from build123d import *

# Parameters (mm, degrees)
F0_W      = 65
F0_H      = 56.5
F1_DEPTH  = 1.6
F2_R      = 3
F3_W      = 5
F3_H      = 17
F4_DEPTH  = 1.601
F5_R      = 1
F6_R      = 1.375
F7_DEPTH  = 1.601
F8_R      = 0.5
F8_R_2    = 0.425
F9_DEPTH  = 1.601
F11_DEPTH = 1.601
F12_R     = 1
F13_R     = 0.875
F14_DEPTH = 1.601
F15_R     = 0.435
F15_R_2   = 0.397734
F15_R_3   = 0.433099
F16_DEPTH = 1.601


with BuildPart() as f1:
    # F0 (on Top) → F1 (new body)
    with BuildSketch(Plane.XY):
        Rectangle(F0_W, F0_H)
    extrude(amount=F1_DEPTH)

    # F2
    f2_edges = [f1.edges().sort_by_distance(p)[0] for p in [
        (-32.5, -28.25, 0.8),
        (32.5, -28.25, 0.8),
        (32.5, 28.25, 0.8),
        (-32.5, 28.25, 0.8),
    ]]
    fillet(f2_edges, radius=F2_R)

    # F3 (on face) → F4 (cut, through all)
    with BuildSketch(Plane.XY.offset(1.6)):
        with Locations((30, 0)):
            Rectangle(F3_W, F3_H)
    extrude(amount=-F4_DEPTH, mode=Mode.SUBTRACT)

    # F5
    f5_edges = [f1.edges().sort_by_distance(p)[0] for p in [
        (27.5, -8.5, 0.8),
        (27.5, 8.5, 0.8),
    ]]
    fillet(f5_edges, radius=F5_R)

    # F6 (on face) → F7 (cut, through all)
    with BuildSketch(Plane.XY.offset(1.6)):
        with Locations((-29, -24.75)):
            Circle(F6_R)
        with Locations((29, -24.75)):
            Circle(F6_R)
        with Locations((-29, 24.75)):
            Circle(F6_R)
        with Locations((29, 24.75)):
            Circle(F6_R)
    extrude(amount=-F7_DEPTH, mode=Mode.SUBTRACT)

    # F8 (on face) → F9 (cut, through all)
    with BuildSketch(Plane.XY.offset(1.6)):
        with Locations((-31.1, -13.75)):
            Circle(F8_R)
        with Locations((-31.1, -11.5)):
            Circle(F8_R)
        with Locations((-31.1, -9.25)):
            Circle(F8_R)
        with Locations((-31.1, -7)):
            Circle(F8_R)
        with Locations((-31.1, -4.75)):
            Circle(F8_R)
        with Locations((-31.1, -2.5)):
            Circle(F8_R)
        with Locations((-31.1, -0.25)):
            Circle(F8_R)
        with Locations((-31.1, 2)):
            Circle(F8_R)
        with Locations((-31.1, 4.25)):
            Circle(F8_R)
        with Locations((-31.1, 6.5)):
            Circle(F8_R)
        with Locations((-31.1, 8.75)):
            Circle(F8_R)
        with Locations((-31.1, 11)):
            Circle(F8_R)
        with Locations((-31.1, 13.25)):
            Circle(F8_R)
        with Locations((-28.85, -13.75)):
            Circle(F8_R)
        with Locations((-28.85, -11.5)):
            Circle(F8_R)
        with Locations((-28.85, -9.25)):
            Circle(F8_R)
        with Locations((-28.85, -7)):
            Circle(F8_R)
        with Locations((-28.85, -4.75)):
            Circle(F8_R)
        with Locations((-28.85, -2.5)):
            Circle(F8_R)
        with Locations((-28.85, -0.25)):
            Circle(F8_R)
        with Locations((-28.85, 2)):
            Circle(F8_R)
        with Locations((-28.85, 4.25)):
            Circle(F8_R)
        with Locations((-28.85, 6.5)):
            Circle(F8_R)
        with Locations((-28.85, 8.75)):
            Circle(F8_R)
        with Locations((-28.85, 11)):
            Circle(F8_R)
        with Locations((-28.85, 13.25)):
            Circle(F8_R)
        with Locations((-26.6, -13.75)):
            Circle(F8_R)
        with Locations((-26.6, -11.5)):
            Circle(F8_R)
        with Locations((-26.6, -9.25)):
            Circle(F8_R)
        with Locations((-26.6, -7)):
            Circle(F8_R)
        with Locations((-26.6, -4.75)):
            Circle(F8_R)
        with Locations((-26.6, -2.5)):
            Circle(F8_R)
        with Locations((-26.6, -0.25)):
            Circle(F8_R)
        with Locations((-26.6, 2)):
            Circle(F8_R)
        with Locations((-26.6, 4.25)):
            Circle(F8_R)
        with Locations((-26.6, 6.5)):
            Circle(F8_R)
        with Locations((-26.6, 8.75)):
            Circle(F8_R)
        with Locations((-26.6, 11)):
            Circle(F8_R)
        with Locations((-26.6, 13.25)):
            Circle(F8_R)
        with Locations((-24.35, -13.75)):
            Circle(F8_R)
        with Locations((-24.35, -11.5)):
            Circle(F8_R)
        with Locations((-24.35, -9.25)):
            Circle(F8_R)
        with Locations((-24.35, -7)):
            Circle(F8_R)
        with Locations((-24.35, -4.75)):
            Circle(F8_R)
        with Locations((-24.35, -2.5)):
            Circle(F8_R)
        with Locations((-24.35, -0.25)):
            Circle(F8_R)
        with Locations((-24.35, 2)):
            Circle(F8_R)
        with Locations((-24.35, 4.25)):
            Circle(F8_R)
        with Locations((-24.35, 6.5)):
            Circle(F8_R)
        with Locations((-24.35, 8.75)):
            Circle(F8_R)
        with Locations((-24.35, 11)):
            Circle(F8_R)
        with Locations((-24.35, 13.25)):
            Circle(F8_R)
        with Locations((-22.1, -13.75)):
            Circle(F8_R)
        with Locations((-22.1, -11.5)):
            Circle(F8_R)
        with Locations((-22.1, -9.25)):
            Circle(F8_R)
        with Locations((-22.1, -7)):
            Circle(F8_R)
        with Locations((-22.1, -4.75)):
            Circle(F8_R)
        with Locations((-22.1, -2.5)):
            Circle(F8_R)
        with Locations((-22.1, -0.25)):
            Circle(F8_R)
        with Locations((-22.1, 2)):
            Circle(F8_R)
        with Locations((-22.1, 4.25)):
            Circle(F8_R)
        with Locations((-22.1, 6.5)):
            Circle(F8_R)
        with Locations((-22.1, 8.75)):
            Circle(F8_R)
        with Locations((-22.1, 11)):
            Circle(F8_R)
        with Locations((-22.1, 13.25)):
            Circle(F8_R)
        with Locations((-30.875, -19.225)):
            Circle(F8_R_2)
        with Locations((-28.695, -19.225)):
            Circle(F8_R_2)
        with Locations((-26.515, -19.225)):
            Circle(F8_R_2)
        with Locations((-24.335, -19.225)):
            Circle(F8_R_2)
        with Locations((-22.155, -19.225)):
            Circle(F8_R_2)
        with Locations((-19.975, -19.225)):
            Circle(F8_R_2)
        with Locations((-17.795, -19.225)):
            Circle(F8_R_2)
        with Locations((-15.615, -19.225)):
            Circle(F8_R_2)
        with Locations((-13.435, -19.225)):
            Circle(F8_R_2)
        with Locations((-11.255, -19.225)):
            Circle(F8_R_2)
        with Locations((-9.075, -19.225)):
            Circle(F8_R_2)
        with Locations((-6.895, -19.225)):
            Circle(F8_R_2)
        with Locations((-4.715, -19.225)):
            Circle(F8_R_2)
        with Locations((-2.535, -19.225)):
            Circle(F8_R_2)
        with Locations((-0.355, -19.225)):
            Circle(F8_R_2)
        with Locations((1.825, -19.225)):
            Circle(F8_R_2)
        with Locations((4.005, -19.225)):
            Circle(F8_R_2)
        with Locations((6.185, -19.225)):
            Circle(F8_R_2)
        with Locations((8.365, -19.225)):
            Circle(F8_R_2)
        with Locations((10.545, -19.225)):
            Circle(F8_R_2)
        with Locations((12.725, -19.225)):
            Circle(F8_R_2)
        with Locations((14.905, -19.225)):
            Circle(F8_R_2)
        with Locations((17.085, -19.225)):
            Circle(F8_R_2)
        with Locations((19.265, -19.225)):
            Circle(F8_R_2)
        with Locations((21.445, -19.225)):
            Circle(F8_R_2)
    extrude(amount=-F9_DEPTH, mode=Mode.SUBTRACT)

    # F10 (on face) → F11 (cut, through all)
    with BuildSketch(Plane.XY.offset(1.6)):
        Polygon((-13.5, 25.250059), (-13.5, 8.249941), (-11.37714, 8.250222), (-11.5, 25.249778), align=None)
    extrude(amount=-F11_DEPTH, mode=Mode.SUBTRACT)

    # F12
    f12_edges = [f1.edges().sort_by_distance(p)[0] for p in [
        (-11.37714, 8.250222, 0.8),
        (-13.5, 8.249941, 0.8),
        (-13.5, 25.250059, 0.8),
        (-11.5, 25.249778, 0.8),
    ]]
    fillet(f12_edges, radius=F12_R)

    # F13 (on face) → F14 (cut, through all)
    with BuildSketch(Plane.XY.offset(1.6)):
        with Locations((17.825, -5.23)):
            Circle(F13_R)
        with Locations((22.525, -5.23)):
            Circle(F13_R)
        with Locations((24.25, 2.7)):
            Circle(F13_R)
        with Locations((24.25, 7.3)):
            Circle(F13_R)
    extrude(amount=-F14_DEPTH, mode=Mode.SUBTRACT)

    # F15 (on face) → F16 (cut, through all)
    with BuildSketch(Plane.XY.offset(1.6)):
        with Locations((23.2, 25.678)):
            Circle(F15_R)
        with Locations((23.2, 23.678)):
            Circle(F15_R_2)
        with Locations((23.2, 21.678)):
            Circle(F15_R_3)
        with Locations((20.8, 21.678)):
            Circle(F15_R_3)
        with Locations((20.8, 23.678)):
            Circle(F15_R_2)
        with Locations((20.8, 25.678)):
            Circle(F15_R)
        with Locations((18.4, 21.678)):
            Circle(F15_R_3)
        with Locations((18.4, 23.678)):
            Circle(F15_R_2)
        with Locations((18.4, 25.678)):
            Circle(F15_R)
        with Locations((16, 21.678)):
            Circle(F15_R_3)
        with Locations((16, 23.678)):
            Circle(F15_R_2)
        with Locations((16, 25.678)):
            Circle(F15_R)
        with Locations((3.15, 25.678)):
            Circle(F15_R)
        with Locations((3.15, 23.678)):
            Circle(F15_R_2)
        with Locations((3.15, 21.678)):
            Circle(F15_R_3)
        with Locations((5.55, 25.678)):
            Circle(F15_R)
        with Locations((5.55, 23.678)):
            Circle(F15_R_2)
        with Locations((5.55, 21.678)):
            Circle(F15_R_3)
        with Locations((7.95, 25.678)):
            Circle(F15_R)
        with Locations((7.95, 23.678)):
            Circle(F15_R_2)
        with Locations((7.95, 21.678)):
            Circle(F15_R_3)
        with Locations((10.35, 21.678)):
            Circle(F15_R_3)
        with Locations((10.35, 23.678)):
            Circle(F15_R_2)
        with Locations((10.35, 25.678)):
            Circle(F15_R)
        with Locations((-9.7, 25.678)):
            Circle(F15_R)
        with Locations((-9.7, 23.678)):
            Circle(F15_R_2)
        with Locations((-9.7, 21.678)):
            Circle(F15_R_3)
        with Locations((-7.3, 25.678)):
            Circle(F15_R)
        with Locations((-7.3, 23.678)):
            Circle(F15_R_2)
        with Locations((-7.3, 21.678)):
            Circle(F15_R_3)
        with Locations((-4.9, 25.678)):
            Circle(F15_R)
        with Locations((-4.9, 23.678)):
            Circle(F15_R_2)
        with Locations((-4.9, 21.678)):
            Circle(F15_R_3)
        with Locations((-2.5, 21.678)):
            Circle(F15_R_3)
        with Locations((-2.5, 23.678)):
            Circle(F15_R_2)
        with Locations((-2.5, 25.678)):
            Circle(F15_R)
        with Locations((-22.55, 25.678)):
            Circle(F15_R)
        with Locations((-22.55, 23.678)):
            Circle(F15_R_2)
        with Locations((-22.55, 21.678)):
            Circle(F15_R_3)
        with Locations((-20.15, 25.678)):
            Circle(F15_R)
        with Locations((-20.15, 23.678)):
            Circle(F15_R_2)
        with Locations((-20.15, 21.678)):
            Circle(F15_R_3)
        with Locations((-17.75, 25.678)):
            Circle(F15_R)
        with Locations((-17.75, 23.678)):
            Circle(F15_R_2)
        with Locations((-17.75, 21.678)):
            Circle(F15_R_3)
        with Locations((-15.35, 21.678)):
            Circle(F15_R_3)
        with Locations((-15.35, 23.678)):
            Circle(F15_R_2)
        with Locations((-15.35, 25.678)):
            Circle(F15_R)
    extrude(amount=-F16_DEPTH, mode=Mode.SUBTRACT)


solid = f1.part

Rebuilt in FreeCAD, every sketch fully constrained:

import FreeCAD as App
import Part
import Sketcher


def edges_at(feature, points):
    """Names of the edges that pass closest to the given points."""
    edges = feature.Shape.Edges
    near = lambda p: min(range(len(edges)), key=lambda i: edges[i].distToShape(Part.Vertex(*p))[0])
    return sorted({f"Edge{near(p) + 1}" for p in points})

doc = App.newDocument("Part")
body = doc.addObject("PartDesign::Body", "Body")

# Sketch on XY plane
sketch1 = doc.addObject("Sketcher::SketchObject", "Sketch")
body.addObject(sketch1)
sketch1.AttachmentSupport = (doc.XY_Plane, [""])
sketch1.MapMode = "FlatFace"
sketch1.addGeometry([
    Part.LineSegment(App.Vector(-32, 28, 0), App.Vector(-32, -28, 0)),
    Part.LineSegment(App.Vector(-32, -28, 0), App.Vector(32, -28, 0)),
    Part.LineSegment(App.Vector(32, -28, 0), App.Vector(32, 28, 0)),
    Part.LineSegment(App.Vector(32, 28, 0), App.Vector(-32, 28, 0)),
], False)
sketch1.addConstraint([
    Sketcher.Constraint("Coincident", 0, 2, 1, 1),
    Sketcher.Constraint("Coincident", 1, 2, 2, 1),
    Sketcher.Constraint("Coincident", 2, 2, 3, 1),
    Sketcher.Constraint("Coincident", 3, 2, 0, 1),
    Sketcher.Constraint("Vertical", 0),
    Sketcher.Constraint("Horizontal", 1),
    Sketcher.Constraint("Vertical", 2),
    Sketcher.Constraint("Horizontal", 3),
    Sketcher.Constraint("Symmetric", 0, 2, 2, 2, -1, 1),
    Sketcher.Constraint("DistanceX", 1, 1, 1, 2, 65.0),
    Sketcher.Constraint("DistanceY", 0, 2, 0, 1, 56.5),
])
pad1 = doc.addObject("PartDesign::Pad", "Pad")
body.addObject(pad1)
pad1.Profile = sketch1
pad1.Length = 1.6
doc.recompute()

fillet = doc.addObject("PartDesign::Fillet", "Fillet")
body.addObject(fillet)
fillet.Base = (pad1, edges_at(pad1, [
    (-32.5, -28.25, 0.8),
    (32.5, -28.25, 0.8),
    (32.5, 28.25, 0.8),
    (-32.5, 28.25, 0.8),
]))
fillet.Radius = 3

# Sketch on XY plane
sketch2 = doc.addObject("Sketcher::SketchObject", "Sketch001")
body.addObject(sketch2)
sketch2.AttachmentSupport = (doc.XY_Plane, [""])
sketch2.MapMode = "FlatFace"
sketch2.AttachmentOffset = App.Placement(App.Vector(0, 0, 1.6), App.Rotation())
sketch2.addGeometry([
    Part.LineSegment(App.Vector(28, 8, 0), App.Vector(28, -8, 0)),
    Part.LineSegment(App.Vector(28, -8, 0), App.Vector(32, -8, 0)),
    Part.LineSegment(App.Vector(32, -8, 0), App.Vector(32, 8, 0)),
    Part.LineSegment(App.Vector(32, 8, 0), App.Vector(28, 8, 0)),
], False)
sketch2.addConstraint([
    Sketcher.Constraint("Coincident", 0, 2, 1, 1),
    Sketcher.Constraint("Coincident", 1, 2, 2, 1),
    Sketcher.Constraint("Coincident", 2, 2, 3, 1),
    Sketcher.Constraint("Coincident", 3, 2, 0, 1),
    Sketcher.Constraint("Vertical", 0),
    Sketcher.Constraint("Horizontal", 1),
    Sketcher.Constraint("Vertical", 2),
    Sketcher.Constraint("Horizontal", 3),
    Sketcher.Constraint("DistanceX", 1, 1, 1, 2, 5.0),
    Sketcher.Constraint("DistanceY", 0, 2, 0, 1, 17.0),
    Sketcher.Constraint("DistanceX", -1, 1, 0, 2, 27.5),
    Sketcher.Constraint("DistanceY", 0, 2, -1, 1, 8.5),
])
pocket1 = doc.addObject("PartDesign::Pocket", "Pocket")
body.addObject(pocket1)
pocket1.Profile = sketch2
pocket1.Type = "ThroughAll"
doc.recompute()

fillet2 = doc.addObject("PartDesign::Fillet", "Fillet001")
body.addObject(fillet2)
fillet2.Base = (pocket1, edges_at(pocket1, [(27.5, -8.5, 0.8), (27.5, 8.5, 0.8)]))
fillet2.Radius = 1

# Sketch on XY plane
sketch3 = doc.addObject("Sketcher::SketchObject", "Sketch002")
body.addObject(sketch3)
sketch3.AttachmentSupport = (doc.XY_Plane, [""])
sketch3.MapMode = "FlatFace"
sketch3.AttachmentOffset = App.Placement(App.Vector(0, 0, 1.6), App.Rotation())
sketch3.addGeometry([
    Part.Circle(App.Vector(-29, -24.8, 0), App.Vector(0, 0, 1), 1.4),
    Part.Circle(App.Vector(29, -24.8, 0), App.Vector(0, 0, 1), 1.4),
    Part.Circle(App.Vector(-29, 24.8, 0), App.Vector(0, 0, 1), 1.4),
    Part.Circle(App.Vector(29, 24.8, 0), App.Vector(0, 0, 1), 1.4),
], False)
sketch3.addConstraint([
    Sketcher.Constraint("Equal", 0, 1),
    Sketcher.Constraint("Equal", 1, 2),
    Sketcher.Constraint("Equal", 2, 3),
    Sketcher.Constraint("Symmetric", 1, 3, 2, 3, -1, 1),
    Sketcher.Constraint("Symmetric", 0, 3, 3, 3, -1, 1),
    Sketcher.Constraint("Symmetric", 0, 3, 1, 3, -2),
    Sketcher.Constraint("Diameter", 0, 2.75),
    Sketcher.Constraint("DistanceX", 0, 3, -1, 1, 29.0),
    Sketcher.Constraint("DistanceY", 0, 3, 2, 3, 49.5),
])
pocket2 = doc.addObject("PartDesign::Pocket", "Pocket001")
body.addObject(pocket2)
pocket2.Profile = sketch3
pocket2.Type = "ThroughAll"

# Sketch on XY plane
sketch4 = doc.addObject("Sketcher::SketchObject", "Sketch003")
body.addObject(sketch4)
sketch4.AttachmentSupport = (doc.XY_Plane, [""])
sketch4.MapMode = "FlatFace"
sketch4.AttachmentOffset = App.Placement(App.Vector(0, 0, 1.6), App.Rotation())
sketch4.addGeometry([
    Part.Circle(App.Vector(-31.1, -13.75, 0), App.Vector(0, 0, 1), 0.5),  # 0
    Part.Circle(App.Vector(-31.1, -11.5, 0), App.Vector(0, 0, 1), 0.5),  # 1
    Part.Circle(App.Vector(-31.1, -9.25, 0), App.Vector(0, 0, 1), 0.5),  # 2
    Part.Circle(App.Vector(-31.1, -7, 0), App.Vector(0, 0, 1), 0.5),  # 3
    Part.Circle(App.Vector(-31.1, -4.75, 0), App.Vector(0, 0, 1), 0.5),  # 4
    Part.Circle(App.Vector(-31.1, -2.5, 0), App.Vector(0, 0, 1), 0.5),  # 5
    Part.Circle(App.Vector(-31.1, -0.25, 0), App.Vector(0, 0, 1), 0.5),  # 6
    Part.Circle(App.Vector(-31.1, 2, 0), App.Vector(0, 0, 1), 0.5),  # 7
    Part.Circle(App.Vector(-31.1, 4.25, 0), App.Vector(0, 0, 1), 0.5),  # 8
    Part.Circle(App.Vector(-31.1, 6.5, 0), App.Vector(0, 0, 1), 0.5),  # 9
    Part.Circle(App.Vector(-31.1, 8.75, 0), App.Vector(0, 0, 1), 0.5),  # 10
    Part.Circle(App.Vector(-31.1, 11, 0), App.Vector(0, 0, 1), 0.5),  # 11
    Part.Circle(App.Vector(-31.1, 13.25, 0), App.Vector(0, 0, 1), 0.5),  # 12
    Part.Circle(App.Vector(-28.85, -13.75, 0), App.Vector(0, 0, 1), 0.5),  # 13
    Part.Circle(App.Vector(-28.85, -11.5, 0), App.Vector(0, 0, 1), 0.5),  # 14
    Part.Circle(App.Vector(-28.85, -9.25, 0), App.Vector(0, 0, 1), 0.5),  # 15
    Part.Circle(App.Vector(-28.85, -7, 0), App.Vector(0, 0, 1), 0.5),  # 16
    Part.Circle(App.Vector(-28.85, -4.75, 0), App.Vector(0, 0, 1), 0.5),  # 17
    Part.Circle(App.Vector(-28.85, -2.5, 0), App.Vector(0, 0, 1), 0.5),  # 18
    Part.Circle(App.Vector(-28.85, -0.25, 0), App.Vector(0, 0, 1), 0.5),  # 19
    Part.Circle(App.Vector(-28.85, 2, 0), App.Vector(0, 0, 1), 0.5),  # 20
    Part.Circle(App.Vector(-28.85, 4.25, 0), App.Vector(0, 0, 1), 0.5),  # 21
    Part.Circle(App.Vector(-28.85, 6.5, 0), App.Vector(0, 0, 1), 0.5),  # 22
    Part.Circle(App.Vector(-28.85, 8.75, 0), App.Vector(0, 0, 1), 0.5),  # 23
    Part.Circle(App.Vector(-28.85, 11, 0), App.Vector(0, 0, 1), 0.5),  # 24
    Part.Circle(App.Vector(-28.85, 13.25, 0), App.Vector(0, 0, 1), 0.5),  # 25
    Part.Circle(App.Vector(-26.6, -13.75, 0), App.Vector(0, 0, 1), 0.5),  # 26
    Part.Circle(App.Vector(-26.6, -11.5, 0), App.Vector(0, 0, 1), 0.5),  # 27
    Part.Circle(App.Vector(-26.6, -9.25, 0), App.Vector(0, 0, 1), 0.5),  # 28
    Part.Circle(App.Vector(-26.6, -7, 0), App.Vector(0, 0, 1), 0.5),  # 29
    Part.Circle(App.Vector(-26.6, -4.75, 0), App.Vector(0, 0, 1), 0.5),  # 30
    Part.Circle(App.Vector(-26.6, -2.5, 0), App.Vector(0, 0, 1), 0.5),  # 31
    Part.Circle(App.Vector(-26.6, -0.25, 0), App.Vector(0, 0, 1), 0.5),  # 32
    Part.Circle(App.Vector(-26.6, 2, 0), App.Vector(0, 0, 1), 0.5),  # 33
    Part.Circle(App.Vector(-26.6, 4.25, 0), App.Vector(0, 0, 1), 0.5),  # 34
    Part.Circle(App.Vector(-26.6, 6.5, 0), App.Vector(0, 0, 1), 0.5),  # 35
    Part.Circle(App.Vector(-26.6, 8.75, 0), App.Vector(0, 0, 1), 0.5),  # 36
    Part.Circle(App.Vector(-26.6, 11, 0), App.Vector(0, 0, 1), 0.5),  # 37
    Part.Circle(App.Vector(-26.6, 13.25, 0), App.Vector(0, 0, 1), 0.5),  # 38
    Part.Circle(App.Vector(-24.35, -13.75, 0), App.Vector(0, 0, 1), 0.5),  # 39
    Part.Circle(App.Vector(-24.35, -11.5, 0), App.Vector(0, 0, 1), 0.5),  # 40
    Part.Circle(App.Vector(-24.35, -9.25, 0), App.Vector(0, 0, 1), 0.5),  # 41
    Part.Circle(App.Vector(-24.35, -7, 0), App.Vector(0, 0, 1), 0.5),  # 42
    Part.Circle(App.Vector(-24.35, -4.75, 0), App.Vector(0, 0, 1), 0.5),  # 43
    Part.Circle(App.Vector(-24.35, -2.5, 0), App.Vector(0, 0, 1), 0.5),  # 44
    Part.Circle(App.Vector(-24.35, -0.25, 0), App.Vector(0, 0, 1), 0.5),  # 45
    Part.Circle(App.Vector(-24.35, 2, 0), App.Vector(0, 0, 1), 0.5),  # 46
    Part.Circle(App.Vector(-24.35, 4.25, 0), App.Vector(0, 0, 1), 0.5),  # 47
    Part.Circle(App.Vector(-24.35, 6.5, 0), App.Vector(0, 0, 1), 0.5),  # 48
    Part.Circle(App.Vector(-24.35, 8.75, 0), App.Vector(0, 0, 1), 0.5),  # 49
    Part.Circle(App.Vector(-24.35, 11, 0), App.Vector(0, 0, 1), 0.5),  # 50
    Part.Circle(App.Vector(-24.35, 13.25, 0), App.Vector(0, 0, 1), 0.5),  # 51
    Part.Circle(App.Vector(-22.1, -13.75, 0), App.Vector(0, 0, 1), 0.5),  # 52
    Part.Circle(App.Vector(-22.1, -11.5, 0), App.Vector(0, 0, 1), 0.5),  # 53
    Part.Circle(App.Vector(-22.1, -9.25, 0), App.Vector(0, 0, 1), 0.5),  # 54
    Part.Circle(App.Vector(-22.1, -7, 0), App.Vector(0, 0, 1), 0.5),  # 55
    Part.Circle(App.Vector(-22.1, -4.75, 0), App.Vector(0, 0, 1), 0.5),  # 56
    Part.Circle(App.Vector(-22.1, -2.5, 0), App.Vector(0, 0, 1), 0.5),  # 57
    Part.Circle(App.Vector(-22.1, -0.25, 0), App.Vector(0, 0, 1), 0.5),  # 58
    Part.Circle(App.Vector(-22.1, 2, 0), App.Vector(0, 0, 1), 0.5),  # 59
    Part.Circle(App.Vector(-22.1, 4.25, 0), App.Vector(0, 0, 1), 0.5),  # 60
    Part.Circle(App.Vector(-22.1, 6.5, 0), App.Vector(0, 0, 1), 0.5),  # 61
    Part.Circle(App.Vector(-22.1, 8.75, 0), App.Vector(0, 0, 1), 0.5),  # 62
    Part.Circle(App.Vector(-22.1, 11, 0), App.Vector(0, 0, 1), 0.5),  # 63
    Part.Circle(App.Vector(-22.1, 13.25, 0), App.Vector(0, 0, 1), 0.5),  # 64
    Part.Circle(App.Vector(-30.88, -19.23, 0), App.Vector(0, 0, 1), 0.42),  # 65
    Part.Circle(App.Vector(-28.7, -19.23, 0), App.Vector(0, 0, 1), 0.42),  # 66
    Part.Circle(App.Vector(-26.52, -19.23, 0), App.Vector(0, 0, 1), 0.42),  # 67
    Part.Circle(App.Vector(-24.34, -19.23, 0), App.Vector(0, 0, 1), 0.42),  # 68
    Part.Circle(App.Vector(-22.16, -19.23, 0), App.Vector(0, 0, 1), 0.42),  # 69
    Part.Circle(App.Vector(-19.98, -19.23, 0), App.Vector(0, 0, 1), 0.42),  # 70
    Part.Circle(App.Vector(-17.8, -19.23, 0), App.Vector(0, 0, 1), 0.42),  # 71
    Part.Circle(App.Vector(-15.62, -19.23, 0), App.Vector(0, 0, 1), 0.42),  # 72
    Part.Circle(App.Vector(-13.44, -19.23, 0), App.Vector(0, 0, 1), 0.42),  # 73
    Part.Circle(App.Vector(-11.26, -19.23, 0), App.Vector(0, 0, 1), 0.42),  # 74
    Part.Circle(App.Vector(-9.07, -19.23, 0), App.Vector(0, 0, 1), 0.42),  # 75
    Part.Circle(App.Vector(-6.89, -19.23, 0), App.Vector(0, 0, 1), 0.42),  # 76
    Part.Circle(App.Vector(-4.71, -19.23, 0), App.Vector(0, 0, 1), 0.42),  # 77
    Part.Circle(App.Vector(-2.54, -19.23, 0), App.Vector(0, 0, 1), 0.42),  # 78
    Part.Circle(App.Vector(-0.35, -19.23, 0), App.Vector(0, 0, 1), 0.42),  # 79
    Part.Circle(App.Vector(1.82, -19.23, 0), App.Vector(0, 0, 1), 0.42),  # 80
    Part.Circle(App.Vector(4, -19.23, 0), App.Vector(0, 0, 1), 0.42),  # 81
    Part.Circle(App.Vector(6.18, -19.23, 0), App.Vector(0, 0, 1), 0.42),  # 82
    Part.Circle(App.Vector(8.37, -19.23, 0), App.Vector(0, 0, 1), 0.42),  # 83
    Part.Circle(App.Vector(10.54, -19.23, 0), App.Vector(0, 0, 1), 0.42),  # 84
    Part.Circle(App.Vector(12.72, -19.23, 0), App.Vector(0, 0, 1), 0.42),  # 85
    Part.Circle(App.Vector(14.9, -19.23, 0), App.Vector(0, 0, 1), 0.42),  # 86
    Part.Circle(App.Vector(17.09, -19.23, 0), App.Vector(0, 0, 1), 0.42),  # 87
    Part.Circle(App.Vector(19.27, -19.23, 0), App.Vector(0, 0, 1), 0.42),  # 88
    Part.Circle(App.Vector(21.45, -19.23, 0), App.Vector(0, 0, 1), 0.42),  # 89
], False)
sketch4.addConstraint([
    Sketcher.Constraint("Equal", 0, 1),
    Sketcher.Constraint("Equal", 1, 2),
    Sketcher.Constraint("Equal", 2, 3),
    Sketcher.Constraint("Equal", 3, 4),
    Sketcher.Constraint("Equal", 4, 5),
    Sketcher.Constraint("Equal", 5, 6),
    Sketcher.Constraint("Equal", 6, 7),
    Sketcher.Constraint("Equal", 7, 8),
    Sketcher.Constraint("Equal", 8, 9),
    Sketcher.Constraint("Equal", 9, 10),
    Sketcher.Constraint("Equal", 10, 11),
    Sketcher.Constraint("Equal", 11, 12),
    Sketcher.Constraint("Equal", 12, 13),
    Sketcher.Constraint("Equal", 13, 14),
    Sketcher.Constraint("Equal", 14, 15),
    Sketcher.Constraint("Equal", 15, 16),
    Sketcher.Constraint("Equal", 16, 17),
    Sketcher.Constraint("Equal", 17, 18),
    Sketcher.Constraint("Equal", 18, 19),
    Sketcher.Constraint("Equal", 19, 20),
    Sketcher.Constraint("Equal", 20, 21),
    Sketcher.Constraint("Equal", 21, 22),
    Sketcher.Constraint("Equal", 22, 23),
    Sketcher.Constraint("Equal", 23, 24),
    Sketcher.Constraint("Equal", 24, 25),
    Sketcher.Constraint("Equal", 25, 26),
    Sketcher.Constraint("Equal", 26, 27),
    Sketcher.Constraint("Equal", 27, 28),
    Sketcher.Constraint("Equal", 28, 29),
    Sketcher.Constraint("Equal", 29, 30),
    Sketcher.Constraint("Equal", 30, 31),
    Sketcher.Constraint("Equal", 31, 32),
    Sketcher.Constraint("Equal", 32, 33),
    Sketcher.Constraint("Equal", 33, 34),
    Sketcher.Constraint("Equal", 34, 35),
    Sketcher.Constraint("Equal", 35, 36),
    Sketcher.Constraint("Equal", 36, 37),
    Sketcher.Constraint("Equal", 37, 38),
    Sketcher.Constraint("Equal", 38, 39),
    Sketcher.Constraint("Equal", 39, 40),
    Sketcher.Constraint("Equal", 40, 41),
    Sketcher.Constraint("Equal", 41, 42),
    Sketcher.Constraint("Equal", 42, 43),
    Sketcher.Constraint("Equal", 43, 44),
    Sketcher.Constraint("Equal", 44, 45),
    Sketcher.Constraint("Equal", 45, 46),
    Sketcher.Constraint("Equal", 46, 47),
    Sketcher.Constraint("Equal", 47, 48),
    Sketcher.Constraint("Equal", 48, 49),
    Sketcher.Constraint("Equal", 49, 50),
    Sketcher.Constraint("Equal", 50, 51),
    Sketcher.Constraint("Equal", 51, 52),
    Sketcher.Constraint("Equal", 52, 53),
    Sketcher.Constraint("Equal", 53, 54),
    Sketcher.Constraint("Equal", 54, 55),
    Sketcher.Constraint("Equal", 55, 56),
    Sketcher.Constraint("Equal", 56, 57),
    Sketcher.Constraint("Equal", 57, 58),
    Sketcher.Constraint("Equal", 58, 59),
    Sketcher.Constraint("Equal", 59, 60),
    Sketcher.Constraint("Equal", 60, 61),
    Sketcher.Constraint("Equal", 61, 62),
    Sketcher.Constraint("Equal", 62, 63),
    Sketcher.Constraint("Equal", 63, 64),
    Sketcher.Constraint("Equal", 65, 66),
    Sketcher.Constraint("Equal", 66, 67),
    Sketcher.Constraint("Equal", 67, 68),
    Sketcher.Constraint("Equal", 68, 69),
    Sketcher.Constraint("Equal", 69, 70),
    Sketcher.Constraint("Equal", 70, 71),
    Sketcher.Constraint("Equal", 71, 72),
    Sketcher.Constraint("Equal", 72, 73),
    Sketcher.Constraint("Equal", 73, 74),
    Sketcher.Constraint("Equal", 74, 75),
    Sketcher.Constraint("Equal", 75, 76),
    Sketcher.Constraint("Equal", 76, 77),
    Sketcher.Constraint("Equal", 77, 78),
    Sketcher.Constraint("Equal", 78, 79),
    Sketcher.Constraint("Equal", 79, 80),
    Sketcher.Constraint("Equal", 80, 81),
    Sketcher.Constraint("Equal", 81, 82),
    Sketcher.Constraint("Equal", 82, 83),
    Sketcher.Constraint("Equal", 83, 84),
    Sketcher.Constraint("Equal", 84, 85),
    Sketcher.Constraint("Equal", 85, 86),
    Sketcher.Constraint("Equal", 86, 87),
    Sketcher.Constraint("Equal", 87, 88),
    Sketcher.Constraint("Equal", 88, 89),
    Sketcher.Constraint("Horizontal", 0, 3, 13, 3),
    Sketcher.Constraint("Horizontal", 1, 3, 14, 3),
    Sketcher.Constraint("Horizontal", 2, 3, 15, 3),
    Sketcher.Constraint("Horizontal", 3, 3, 16, 3),
    Sketcher.Constraint("Horizontal", 4, 3, 17, 3),
    Sketcher.Constraint("Horizontal", 5, 3, 18, 3),
    Sketcher.Constraint("Horizontal", 6, 3, 19, 3),
    Sketcher.Constraint("Horizontal", 7, 3, 20, 3),
    Sketcher.Constraint("Horizontal", 8, 3, 21, 3),
    Sketcher.Constraint("Horizontal", 9, 3, 22, 3),
    Sketcher.Constraint("Horizontal", 10, 3, 23, 3),
    Sketcher.Constraint("Horizontal", 11, 3, 24, 3),
    Sketcher.Constraint("Horizontal", 12, 3, 25, 3),
    Sketcher.Constraint("Horizontal", 13, 3, 26, 3),
    Sketcher.Constraint("Horizontal", 14, 3, 27, 3),
    Sketcher.Constraint("Horizontal", 15, 3, 28, 3),
    Sketcher.Constraint("Horizontal", 16, 3, 29, 3),
    Sketcher.Constraint("Horizontal", 17, 3, 30, 3),
    Sketcher.Constraint("Horizontal", 18, 3, 31, 3),
    Sketcher.Constraint("Horizontal", 19, 3, 32, 3),
    Sketcher.Constraint("Horizontal", 20, 3, 33, 3),
    Sketcher.Constraint("Horizontal", 21, 3, 34, 3),
    Sketcher.Constraint("Horizontal", 22, 3, 35, 3),
    Sketcher.Constraint("Horizontal", 23, 3, 36, 3),
    Sketcher.Constraint("Horizontal", 24, 3, 37, 3),
    Sketcher.Constraint("Horizontal", 25, 3, 38, 3),
    Sketcher.Constraint("Horizontal", 26, 3, 39, 3),
    Sketcher.Constraint("Horizontal", 27, 3, 40, 3),
    Sketcher.Constraint("Horizontal", 28, 3, 41, 3),
    Sketcher.Constraint("Horizontal", 29, 3, 42, 3),
    Sketcher.Constraint("Horizontal", 30, 3, 43, 3),
    Sketcher.Constraint("Horizontal", 31, 3, 44, 3),
    Sketcher.Constraint("Horizontal", 32, 3, 45, 3),
    Sketcher.Constraint("Horizontal", 33, 3, 46, 3),
    Sketcher.Constraint("Horizontal", 34, 3, 47, 3),
    Sketcher.Constraint("Horizontal", 35, 3, 48, 3),
    Sketcher.Constraint("Horizontal", 36, 3, 49, 3),
    Sketcher.Constraint("Horizontal", 37, 3, 50, 3),
    Sketcher.Constraint("Horizontal", 38, 3, 51, 3),
    Sketcher.Constraint("Horizontal", 39, 3, 52, 3),
    Sketcher.Constraint("Horizontal", 40, 3, 53, 3),
    Sketcher.Constraint("Horizontal", 41, 3, 54, 3),
    Sketcher.Constraint("Horizontal", 42, 3, 55, 3),
    Sketcher.Constraint("Horizontal", 43, 3, 56, 3),
    Sketcher.Constraint("Horizontal", 44, 3, 57, 3),
    Sketcher.Constraint("Horizontal", 45, 3, 58, 3),
    Sketcher.Constraint("Horizontal", 46, 3, 59, 3),
    Sketcher.Constraint("Horizontal", 47, 3, 60, 3),
    Sketcher.Constraint("Horizontal", 48, 3, 61, 3),
    Sketcher.Constraint("Horizontal", 49, 3, 62, 3),
    Sketcher.Constraint("Horizontal", 50, 3, 63, 3),
    Sketcher.Constraint("Horizontal", 51, 3, 64, 3),
    Sketcher.Constraint("Horizontal", 65, 3, 66, 3),
    Sketcher.Constraint("Horizontal", 66, 3, 67, 3),
    Sketcher.Constraint("Horizontal", 67, 3, 68, 3),
    Sketcher.Constraint("Horizontal", 68, 3, 69, 3),
    Sketcher.Constraint("Horizontal", 69, 3, 70, 3),
    Sketcher.Constraint("Horizontal", 70, 3, 71, 3),
    Sketcher.Constraint("Horizontal", 71, 3, 72, 3),
    Sketcher.Constraint("Horizontal", 72, 3, 73, 3),
    Sketcher.Constraint("Horizontal", 73, 3, 74, 3),
    Sketcher.Constraint("Horizontal", 74, 3, 75, 3),
    Sketcher.Constraint("Horizontal", 75, 3, 76, 3),
    Sketcher.Constraint("Horizontal", 76, 3, 77, 3),
    Sketcher.Constraint("Horizontal", 77, 3, 78, 3),
    Sketcher.Constraint("Horizontal", 78, 3, 79, 3),
    Sketcher.Constraint("Horizontal", 79, 3, 80, 3),
    Sketcher.Constraint("Horizontal", 80, 3, 81, 3),
    Sketcher.Constraint("Horizontal", 81, 3, 82, 3),
    Sketcher.Constraint("Horizontal", 82, 3, 83, 3),
    Sketcher.Constraint("Horizontal", 83, 3, 84, 3),
    Sketcher.Constraint("Horizontal", 84, 3, 85, 3),
    Sketcher.Constraint("Horizontal", 85, 3, 86, 3),
    Sketcher.Constraint("Horizontal", 86, 3, 87, 3),
    Sketcher.Constraint("Horizontal", 87, 3, 88, 3),
    Sketcher.Constraint("Horizontal", 88, 3, 89, 3),
    Sketcher.Constraint("Vertical", 0, 3, 1, 3),
    Sketcher.Constraint("Vertical", 1, 3, 2, 3),
    Sketcher.Constraint("Vertical", 2, 3, 3, 3),
    Sketcher.Constraint("Vertical", 3, 3, 4, 3),
    Sketcher.Constraint("Vertical", 4, 3, 5, 3),
    Sketcher.Constraint("Vertical", 5, 3, 6, 3),
    Sketcher.Constraint("Vertical", 6, 3, 7, 3),
    Sketcher.Constraint("Vertical", 7, 3, 8, 3),
    Sketcher.Constraint("Vertical", 8, 3, 9, 3),
    Sketcher.Constraint("Vertical", 9, 3, 10, 3),
    Sketcher.Constraint("Vertical", 10, 3, 11, 3),
    Sketcher.Constraint("Vertical", 11, 3, 12, 3),
    Sketcher.Constraint("Vertical", 13, 3, 14, 3),
    Sketcher.Constraint("Vertical", 14, 3, 15, 3),
    Sketcher.Constraint("Vertical", 15, 3, 16, 3),
    Sketcher.Constraint("Vertical", 16, 3, 17, 3),
    Sketcher.Constraint("Vertical", 17, 3, 18, 3),
    Sketcher.Constraint("Vertical", 18, 3, 19, 3),
    Sketcher.Constraint("Vertical", 19, 3, 20, 3),
    Sketcher.Constraint("Vertical", 20, 3, 21, 3),
    Sketcher.Constraint("Vertical", 21, 3, 22, 3),
    Sketcher.Constraint("Vertical", 22, 3, 23, 3),
    Sketcher.Constraint("Vertical", 23, 3, 24, 3),
    Sketcher.Constraint("Vertical", 24, 3, 25, 3),
    Sketcher.Constraint("Vertical", 26, 3, 27, 3),
    Sketcher.Constraint("Vertical", 27, 3, 28, 3),
    Sketcher.Constraint("Vertical", 28, 3, 29, 3),
    Sketcher.Constraint("Vertical", 29, 3, 30, 3),
    Sketcher.Constraint("Vertical", 30, 3, 31, 3),
    Sketcher.Constraint("Vertical", 31, 3, 32, 3),
    Sketcher.Constraint("Vertical", 32, 3, 33, 3),
    Sketcher.Constraint("Vertical", 33, 3, 34, 3),
    Sketcher.Constraint("Vertical", 34, 3, 35, 3),
    Sketcher.Constraint("Vertical", 35, 3, 36, 3),
    Sketcher.Constraint("Vertical", 36, 3, 37, 3),
    Sketcher.Constraint("Vertical", 37, 3, 38, 3),
    Sketcher.Constraint("Vertical", 39, 3, 40, 3),
    Sketcher.Constraint("Vertical", 40, 3, 41, 3),
    Sketcher.Constraint("Vertical", 41, 3, 42, 3),
    Sketcher.Constraint("Vertical", 42, 3, 43, 3),
    Sketcher.Constraint("Vertical", 43, 3, 44, 3),
    Sketcher.Constraint("Vertical", 44, 3, 45, 3),
    Sketcher.Constraint("Vertical", 45, 3, 46, 3),
    Sketcher.Constraint("Vertical", 46, 3, 47, 3),
    Sketcher.Constraint("Vertical", 47, 3, 48, 3),
    Sketcher.Constraint("Vertical", 48, 3, 49, 3),
    Sketcher.Constraint("Vertical", 49, 3, 50, 3),
    Sketcher.Constraint("Vertical", 50, 3, 51, 3),
    Sketcher.Constraint("Vertical", 52, 3, 53, 3),
    Sketcher.Constraint("Vertical", 53, 3, 54, 3),
    Sketcher.Constraint("Vertical", 54, 3, 55, 3),
    Sketcher.Constraint("Vertical", 55, 3, 56, 3),
    Sketcher.Constraint("Vertical", 56, 3, 57, 3),
    Sketcher.Constraint("Vertical", 57, 3, 58, 3),
    Sketcher.Constraint("Vertical", 58, 3, 59, 3),
    Sketcher.Constraint("Vertical", 59, 3, 60, 3),
    Sketcher.Constraint("Vertical", 60, 3, 61, 3),
    Sketcher.Constraint("Vertical", 61, 3, 62, 3),
    Sketcher.Constraint("Vertical", 62, 3, 63, 3),
    Sketcher.Constraint("Vertical", 63, 3, 64, 3),
    Sketcher.Constraint("Diameter", 0, 1.0),
    Sketcher.Constraint("Diameter", 65, 0.85),
    Sketcher.Constraint("DistanceY", 3, 3, -1, 1, 7.0),
    Sketcher.Constraint("DistanceY", -1, 1, 7, 3, 2.0),
    Sketcher.Constraint("DistanceY", -1, 1, 11, 3, 11.0),
    Sketcher.Constraint("DistanceX", 0, 3, -1, 1, 31.1),
    Sketcher.Constraint("DistanceY", 1, 3, -1, 1, 11.5),
    Sketcher.Constraint("DistanceY", 5, 3, -1, 1, 2.5),
    Sketcher.Constraint("DistanceY", -1, 1, 9, 3, 6.5),
    Sketcher.Constraint("DistanceX", 26, 3, -1, 1, 26.6),
    Sketcher.Constraint("DistanceX", 52, 3, -1, 1, 22.1),
    Sketcher.Constraint("DistanceY", 0, 3, -1, 1, 13.75),
    Sketcher.Constraint("DistanceY", 2, 3, -1, 1, 9.25),
    Sketcher.Constraint("DistanceY", 4, 3, -1, 1, 4.75),
    Sketcher.Constraint("DistanceY", 6, 3, -1, 1, 0.25),
    Sketcher.Constraint("DistanceY", -1, 1, 8, 3, 4.25),
    Sketcher.Constraint("DistanceY", -1, 1, 10, 3, 8.75),
    Sketcher.Constraint("DistanceY", -1, 1, 12, 3, 13.25),
    Sketcher.Constraint("DistanceX", 13, 3, -1, 1, 28.85),
    Sketcher.Constraint("DistanceX", 39, 3, -1, 1, 24.35),
    Sketcher.Constraint("DistanceX", 65, 3, -1, 1, 30.875),
    Sketcher.Constraint("DistanceY", 65, 3, -1, 1, 19.225),
    Sketcher.Constraint("DistanceX", 66, 3, -1, 1, 28.695),
    Sketcher.Constraint("DistanceX", 67, 3, -1, 1, 26.515),
    Sketcher.Constraint("DistanceX", 68, 3, -1, 1, 24.335),
    Sketcher.Constraint("DistanceX", 69, 3, -1, 1, 22.155),
    Sketcher.Constraint("DistanceX", 70, 3, -1, 1, 19.975),
    Sketcher.Constraint("DistanceX", 71, 3, -1, 1, 17.795),
    Sketcher.Constraint("DistanceX", 72, 3, -1, 1, 15.615),
    Sketcher.Constraint("DistanceX", 73, 3, -1, 1, 13.435),
    Sketcher.Constraint("DistanceX", 74, 3, -1, 1, 11.255),
    Sketcher.Constraint("DistanceX", 75, 3, -1, 1, 9.075),
    Sketcher.Constraint("DistanceX", 76, 3, -1, 1, 6.895),
    Sketcher.Constraint("DistanceX", 77, 3, -1, 1, 4.715),
    Sketcher.Constraint("DistanceX", 78, 3, -1, 1, 2.535),
    Sketcher.Constraint("DistanceX", 79, 3, -1, 1, 0.355),
    Sketcher.Constraint("DistanceX", -1, 1, 80, 3, 1.825),
    Sketcher.Constraint("DistanceX", -1, 1, 81, 3, 4.005),
    Sketcher.Constraint("DistanceX", -1, 1, 82, 3, 6.185),
    Sketcher.Constraint("DistanceX", -1, 1, 83, 3, 8.365),
    Sketcher.Constraint("DistanceX", -1, 1, 84, 3, 10.545),
    Sketcher.Constraint("DistanceX", -1, 1, 85, 3, 12.725),
    Sketcher.Constraint("DistanceX", -1, 1, 86, 3, 14.905),
    Sketcher.Constraint("DistanceX", -1, 1, 87, 3, 17.085),
    Sketcher.Constraint("DistanceX", -1, 1, 88, 3, 19.265),
    Sketcher.Constraint("DistanceX", -1, 1, 89, 3, 21.445),
])
pocket3 = doc.addObject("PartDesign::Pocket", "Pocket002")
body.addObject(pocket3)
pocket3.Profile = sketch4
pocket3.Type = "ThroughAll"

# Sketch on XY plane
sketch5 = doc.addObject("Sketcher::SketchObject", "Sketch004")
body.addObject(sketch5)
sketch5.AttachmentSupport = (doc.XY_Plane, [""])
sketch5.MapMode = "FlatFace"
sketch5.AttachmentOffset = App.Placement(App.Vector(0, 0, 1.6), App.Rotation())
sketch5.addGeometry([
    Part.LineSegment(App.Vector(-13.5, 25.3, 0), App.Vector(-13.5, 8.2, 0)),
    Part.LineSegment(App.Vector(-13.5, 8.2, 0), App.Vector(-11.4, 8.3, 0)),
    Part.LineSegment(App.Vector(-11.4, 8.3, 0), App.Vector(-11.5, 25.2, 0)),
    Part.LineSegment(App.Vector(-11.5, 25.2, 0), App.Vector(-13.5, 25.3, 0)),
], False)
sketch5.addConstraint([
    Sketcher.Constraint("Coincident", 0, 2, 1, 1),
    Sketcher.Constraint("Coincident", 1, 2, 2, 1),
    Sketcher.Constraint("Coincident", 2, 2, 3, 1),
    Sketcher.Constraint("Coincident", 3, 2, 0, 1),
    Sketcher.Constraint("Vertical", 0),
    Sketcher.Constraint("Distance", 2, 17.0),
    Sketcher.Constraint("Distance", 3, 2.0),
    Sketcher.Constraint("DistanceX", 0, 2, -1, 1, 13.5),
    Sketcher.Constraint("DistanceY", 0, 2, 0, 1, 17.000118),
    Sketcher.Constraint("Distance", 1, 2.12286),
    Sketcher.Constraint("DistanceY", -1, 1, 0, 2, 8.249941),
    Sketcher.Constraint("DistanceY", 0, 2, 1, 2, 0.000281),
])
pocket4 = doc.addObject("PartDesign::Pocket", "Pocket003")
body.addObject(pocket4)
pocket4.Profile = sketch5
pocket4.Type = "ThroughAll"
doc.recompute()

fillet3 = doc.addObject("PartDesign::Fillet", "Fillet002")
body.addObject(fillet3)
fillet3.Base = (pocket4, edges_at(pocket4, [
    (-11.377, 8.25, 0.8),
    (-13.5, 8.25, 0.8),
    (-13.5, 25.25, 0.8),
    (-11.5, 25.25, 0.8),
]))
fillet3.Radius = 1

# Sketch on XY plane
sketch6 = doc.addObject("Sketcher::SketchObject", "Sketch005")
body.addObject(sketch6)
sketch6.AttachmentSupport = (doc.XY_Plane, [""])
sketch6.MapMode = "FlatFace"
sketch6.AttachmentOffset = App.Placement(App.Vector(0, 0, 1.6), App.Rotation())
sketch6.addGeometry([
    Part.Circle(App.Vector(17.8, -5.2, 0), App.Vector(0, 0, 1), 0.9),
    Part.Circle(App.Vector(22.5, -5.2, 0), App.Vector(0, 0, 1), 0.9),
    Part.Circle(App.Vector(24.2, 2.7, 0), App.Vector(0, 0, 1), 0.9),
    Part.Circle(App.Vector(24.2, 7.3, 0), App.Vector(0, 0, 1), 0.9),
], False)
sketch6.addConstraint([
    Sketcher.Constraint("Equal", 0, 1),
    Sketcher.Constraint("Equal", 1, 2),
    Sketcher.Constraint("Equal", 2, 3),
    Sketcher.Constraint("Horizontal", 0, 3, 1, 3),
    Sketcher.Constraint("Vertical", 2, 3, 3, 3),
    Sketcher.Constraint("Diameter", 0, 1.75),
    Sketcher.Constraint("DistanceY", -1, 1, 2, 3, 2.7),
    Sketcher.Constraint("DistanceY", -1, 1, 3, 3, 7.3),
    Sketcher.Constraint("DistanceX", 0, 3, 1, 3, 4.7),
    Sketcher.Constraint("DistanceY", 0, 3, -1, 1, 5.23),
    Sketcher.Constraint("DistanceX", -1, 1, 2, 3, 24.25),
    Sketcher.Constraint("DistanceX", -1, 1, 0, 3, 17.825),
])
pocket5 = doc.addObject("PartDesign::Pocket", "Pocket004")
body.addObject(pocket5)
pocket5.Profile = sketch6
pocket5.Type = "ThroughAll"

# Sketch on XY plane
sketch7 = doc.addObject("Sketcher::SketchObject", "Sketch006")
body.addObject(sketch7)
sketch7.AttachmentSupport = (doc.XY_Plane, [""])
sketch7.MapMode = "FlatFace"
sketch7.AttachmentOffset = App.Placement(App.Vector(0, 0, 1.6), App.Rotation())
sketch7.addGeometry([
    Part.Circle(App.Vector(23.2, 25.68, 0), App.Vector(0, 0, 1), 0.43),  # 0
    Part.Circle(App.Vector(23.2, 23.68, 0), App.Vector(0, 0, 1), 0.4),  # 1
    Part.Circle(App.Vector(23.2, 21.68, 0), App.Vector(0, 0, 1), 0.43),  # 2
    Part.Circle(App.Vector(20.8, 21.68, 0), App.Vector(0, 0, 1), 0.43),  # 3
    Part.Circle(App.Vector(20.8, 23.68, 0), App.Vector(0, 0, 1), 0.4),  # 4
    Part.Circle(App.Vector(20.8, 25.68, 0), App.Vector(0, 0, 1), 0.43),  # 5
    Part.Circle(App.Vector(18.4, 21.68, 0), App.Vector(0, 0, 1), 0.43),  # 6
    Part.Circle(App.Vector(18.4, 23.68, 0), App.Vector(0, 0, 1), 0.4),  # 7
    Part.Circle(App.Vector(18.4, 25.68, 0), App.Vector(0, 0, 1), 0.43),  # 8
    Part.Circle(App.Vector(16, 21.68, 0), App.Vector(0, 0, 1), 0.43),  # 9
    Part.Circle(App.Vector(16, 23.68, 0), App.Vector(0, 0, 1), 0.4),  # 10
    Part.Circle(App.Vector(16, 25.68, 0), App.Vector(0, 0, 1), 0.43),  # 11
    Part.Circle(App.Vector(3.15, 25.68, 0), App.Vector(0, 0, 1), 0.43),  # 12
    Part.Circle(App.Vector(3.15, 23.68, 0), App.Vector(0, 0, 1), 0.4),  # 13
    Part.Circle(App.Vector(3.15, 21.68, 0), App.Vector(0, 0, 1), 0.43),  # 14
    Part.Circle(App.Vector(5.55, 25.68, 0), App.Vector(0, 0, 1), 0.43),  # 15
    Part.Circle(App.Vector(5.55, 23.68, 0), App.Vector(0, 0, 1), 0.4),  # 16
    Part.Circle(App.Vector(5.55, 21.68, 0), App.Vector(0, 0, 1), 0.43),  # 17
    Part.Circle(App.Vector(7.95, 25.68, 0), App.Vector(0, 0, 1), 0.43),  # 18
    Part.Circle(App.Vector(7.95, 23.68, 0), App.Vector(0, 0, 1), 0.4),  # 19
    Part.Circle(App.Vector(7.95, 21.68, 0), App.Vector(0, 0, 1), 0.43),  # 20
    Part.Circle(App.Vector(10.35, 21.68, 0), App.Vector(0, 0, 1), 0.43),  # 21
    Part.Circle(App.Vector(10.35, 23.68, 0), App.Vector(0, 0, 1), 0.4),  # 22
    Part.Circle(App.Vector(10.35, 25.68, 0), App.Vector(0, 0, 1), 0.43),  # 23
    Part.Circle(App.Vector(-9.7, 25.68, 0), App.Vector(0, 0, 1), 0.43),  # 24
    Part.Circle(App.Vector(-9.7, 23.68, 0), App.Vector(0, 0, 1), 0.4),  # 25
    Part.Circle(App.Vector(-9.7, 21.68, 0), App.Vector(0, 0, 1), 0.43),  # 26
    Part.Circle(App.Vector(-7.3, 25.68, 0), App.Vector(0, 0, 1), 0.43),  # 27
    Part.Circle(App.Vector(-7.3, 23.68, 0), App.Vector(0, 0, 1), 0.4),  # 28
    Part.Circle(App.Vector(-7.3, 21.68, 0), App.Vector(0, 0, 1), 0.43),  # 29
    Part.Circle(App.Vector(-4.9, 25.68, 0), App.Vector(0, 0, 1), 0.43),  # 30
    Part.Circle(App.Vector(-4.9, 23.68, 0), App.Vector(0, 0, 1), 0.4),  # 31
    Part.Circle(App.Vector(-4.9, 21.68, 0), App.Vector(0, 0, 1), 0.43),  # 32
    Part.Circle(App.Vector(-2.5, 21.68, 0), App.Vector(0, 0, 1), 0.43),  # 33
    Part.Circle(App.Vector(-2.5, 23.68, 0), App.Vector(0, 0, 1), 0.4),  # 34
    Part.Circle(App.Vector(-2.5, 25.68, 0), App.Vector(0, 0, 1), 0.43),  # 35
    Part.Circle(App.Vector(-22.55, 25.68, 0), App.Vector(0, 0, 1), 0.43),  # 36
    Part.Circle(App.Vector(-22.55, 23.68, 0), App.Vector(0, 0, 1), 0.4),  # 37
    Part.Circle(App.Vector(-22.55, 21.68, 0), App.Vector(0, 0, 1), 0.43),  # 38
    Part.Circle(App.Vector(-20.15, 25.68, 0), App.Vector(0, 0, 1), 0.43),  # 39
    Part.Circle(App.Vector(-20.15, 23.68, 0), App.Vector(0, 0, 1), 0.4),  # 40
    Part.Circle(App.Vector(-20.15, 21.68, 0), App.Vector(0, 0, 1), 0.43),  # 41
    Part.Circle(App.Vector(-17.75, 25.68, 0), App.Vector(0, 0, 1), 0.43),  # 42
    Part.Circle(App.Vector(-17.75, 23.68, 0), App.Vector(0, 0, 1), 0.4),  # 43
    Part.Circle(App.Vector(-17.75, 21.68, 0), App.Vector(0, 0, 1), 0.43),  # 44
    Part.Circle(App.Vector(-15.35, 21.68, 0), App.Vector(0, 0, 1), 0.43),  # 45
    Part.Circle(App.Vector(-15.35, 23.68, 0), App.Vector(0, 0, 1), 0.4),  # 46
    Part.Circle(App.Vector(-15.35, 25.68, 0), App.Vector(0, 0, 1), 0.43),  # 47
], False)
sketch7.addConstraint([
    Sketcher.Constraint("Equal", 2, 3),
    Sketcher.Constraint("Equal", 1, 4),
    Sketcher.Constraint("Equal", 0, 5),
    Sketcher.Constraint("Equal", 3, 6),
    Sketcher.Constraint("Equal", 4, 7),
    Sketcher.Constraint("Equal", 5, 8),
    Sketcher.Constraint("Equal", 6, 9),
    Sketcher.Constraint("Equal", 7, 10),
    Sketcher.Constraint("Equal", 8, 11),
    Sketcher.Constraint("Equal", 11, 12),
    Sketcher.Constraint("Equal", 10, 13),
    Sketcher.Constraint("Equal", 9, 14),
    Sketcher.Constraint("Equal", 12, 15),
    Sketcher.Constraint("Equal", 13, 16),
    Sketcher.Constraint("Equal", 14, 17),
    Sketcher.Constraint("Equal", 15, 18),
    Sketcher.Constraint("Equal", 16, 19),
    Sketcher.Constraint("Equal", 17, 20),
    Sketcher.Constraint("Equal", 20, 21),
    Sketcher.Constraint("Equal", 19, 22),
    Sketcher.Constraint("Equal", 18, 23),
    Sketcher.Constraint("Equal", 23, 24),
    Sketcher.Constraint("Equal", 22, 25),
    Sketcher.Constraint("Equal", 21, 26),
    Sketcher.Constraint("Equal", 24, 27),
    Sketcher.Constraint("Equal", 25, 28),
    Sketcher.Constraint("Equal", 26, 29),
    Sketcher.Constraint("Equal", 27, 30),
    Sketcher.Constraint("Equal", 28, 31),
    Sketcher.Constraint("Equal", 29, 32),
    Sketcher.Constraint("Equal", 32, 33),
    Sketcher.Constraint("Equal", 31, 34),
    Sketcher.Constraint("Equal", 30, 35),
    Sketcher.Constraint("Equal", 35, 36),
    Sketcher.Constraint("Equal", 34, 37),
    Sketcher.Constraint("Equal", 33, 38),
    Sketcher.Constraint("Equal", 36, 39),
    Sketcher.Constraint("Equal", 37, 40),
    Sketcher.Constraint("Equal", 38, 41),
    Sketcher.Constraint("Equal", 39, 42),
    Sketcher.Constraint("Equal", 40, 43),
    Sketcher.Constraint("Equal", 41, 44),
    Sketcher.Constraint("Equal", 44, 45),
    Sketcher.Constraint("Equal", 43, 46),
    Sketcher.Constraint("Equal", 42, 47),
    Sketcher.Constraint("Horizontal", 2, 3, 3, 3),
    Sketcher.Constraint("Horizontal", 1, 3, 4, 3),
    Sketcher.Constraint("Horizontal", 0, 3, 5, 3),
    Sketcher.Constraint("Horizontal", 3, 3, 6, 3),
    Sketcher.Constraint("Horizontal", 4, 3, 7, 3),
    Sketcher.Constraint("Horizontal", 5, 3, 8, 3),
    Sketcher.Constraint("Horizontal", 6, 3, 9, 3),
    Sketcher.Constraint("Horizontal", 7, 3, 10, 3),
    Sketcher.Constraint("Horizontal", 8, 3, 11, 3),
    Sketcher.Constraint("Horizontal", 11, 3, 12, 3),
    Sketcher.Constraint("Horizontal", 10, 3, 13, 3),
    Sketcher.Constraint("Horizontal", 9, 3, 14, 3),
    Sketcher.Constraint("Horizontal", 12, 3, 15, 3),
    Sketcher.Constraint("Horizontal", 13, 3, 16, 3),
    Sketcher.Constraint("Horizontal", 14, 3, 17, 3),
    Sketcher.Constraint("Horizontal", 15, 3, 18, 3),
    Sketcher.Constraint("Horizontal", 16, 3, 19, 3),
    Sketcher.Constraint("Horizontal", 17, 3, 20, 3),
    Sketcher.Constraint("Horizontal", 20, 3, 21, 3),
    Sketcher.Constraint("Horizontal", 19, 3, 22, 3),
    Sketcher.Constraint("Horizontal", 18, 3, 23, 3),
    Sketcher.Constraint("Horizontal", 23, 3, 24, 3),
    Sketcher.Constraint("Horizontal", 22, 3, 25, 3),
    Sketcher.Constraint("Horizontal", 21, 3, 26, 3),
    Sketcher.Constraint("Horizontal", 24, 3, 27, 3),
    Sketcher.Constraint("Horizontal", 25, 3, 28, 3),
    Sketcher.Constraint("Horizontal", 26, 3, 29, 3),
    Sketcher.Constraint("Horizontal", 27, 3, 30, 3),
    Sketcher.Constraint("Horizontal", 28, 3, 31, 3),
    Sketcher.Constraint("Horizontal", 29, 3, 32, 3),
    Sketcher.Constraint("Horizontal", 32, 3, 33, 3),
    Sketcher.Constraint("Horizontal", 31, 3, 34, 3),
    Sketcher.Constraint("Horizontal", 30, 3, 35, 3),
    Sketcher.Constraint("Horizontal", 35, 3, 36, 3),
    Sketcher.Constraint("Horizontal", 34, 3, 37, 3),
    Sketcher.Constraint("Horizontal", 33, 3, 38, 3),
    Sketcher.Constraint("Horizontal", 36, 3, 39, 3),
    Sketcher.Constraint("Horizontal", 37, 3, 40, 3),
    Sketcher.Constraint("Horizontal", 38, 3, 41, 3),
    Sketcher.Constraint("Horizontal", 39, 3, 42, 3),
    Sketcher.Constraint("Horizontal", 40, 3, 43, 3),
    Sketcher.Constraint("Horizontal", 41, 3, 44, 3),
    Sketcher.Constraint("Horizontal", 44, 3, 45, 3),
    Sketcher.Constraint("Horizontal", 43, 3, 46, 3),
    Sketcher.Constraint("Horizontal", 42, 3, 47, 3),
    Sketcher.Constraint("Vertical", 0, 3, 1, 3),
    Sketcher.Constraint("Vertical", 1, 3, 2, 3),
    Sketcher.Constraint("Vertical", 3, 3, 4, 3),
    Sketcher.Constraint("Vertical", 4, 3, 5, 3),
    Sketcher.Constraint("Vertical", 6, 3, 7, 3),
    Sketcher.Constraint("Vertical", 7, 3, 8, 3),
    Sketcher.Constraint("Vertical", 9, 3, 10, 3),
    Sketcher.Constraint("Vertical", 10, 3, 11, 3),
    Sketcher.Constraint("Vertical", 12, 3, 13, 3),
    Sketcher.Constraint("Vertical", 13, 3, 14, 3),
    Sketcher.Constraint("Vertical", 15, 3, 16, 3),
    Sketcher.Constraint("Vertical", 16, 3, 17, 3),
    Sketcher.Constraint("Vertical", 18, 3, 19, 3),
    Sketcher.Constraint("Vertical", 19, 3, 20, 3),
    Sketcher.Constraint("Vertical", 21, 3, 22, 3),
    Sketcher.Constraint("Vertical", 22, 3, 23, 3),
    Sketcher.Constraint("Vertical", 24, 3, 25, 3),
    Sketcher.Constraint("Vertical", 25, 3, 26, 3),
    Sketcher.Constraint("Vertical", 27, 3, 28, 3),
    Sketcher.Constraint("Vertical", 28, 3, 29, 3),
    Sketcher.Constraint("Vertical", 30, 3, 31, 3),
    Sketcher.Constraint("Vertical", 31, 3, 32, 3),
    Sketcher.Constraint("Vertical", 33, 3, 34, 3),
    Sketcher.Constraint("Vertical", 34, 3, 35, 3),
    Sketcher.Constraint("Vertical", 36, 3, 37, 3),
    Sketcher.Constraint("Vertical", 37, 3, 38, 3),
    Sketcher.Constraint("Vertical", 39, 3, 40, 3),
    Sketcher.Constraint("Vertical", 40, 3, 41, 3),
    Sketcher.Constraint("Vertical", 42, 3, 43, 3),
    Sketcher.Constraint("Vertical", 43, 3, 44, 3),
    Sketcher.Constraint("Vertical", 45, 3, 46, 3),
    Sketcher.Constraint("Vertical", 46, 3, 47, 3),
    Sketcher.Constraint("Diameter", 0, 0.87),
    Sketcher.Constraint("DistanceX", -1, 1, 9, 3, 16.0),
    Sketcher.Constraint("DistanceY", 1, 3, 0, 3, 2.0),
    Sketcher.Constraint("DistanceY", 2, 3, 1, 3, 2.0),
    Sketcher.Constraint("Diameter", 2, 0.866198),
    Sketcher.Constraint("DistanceX", -1, 1, 0, 3, 23.2),
    Sketcher.Constraint("DistanceX", -1, 1, 3, 3, 20.8),
    Sketcher.Constraint("DistanceX", -1, 1, 6, 3, 18.4),
    Sketcher.Constraint("DistanceX", 24, 3, -1, 1, 9.7),
    Sketcher.Constraint("DistanceX", 27, 3, -1, 1, 7.3),
    Sketcher.Constraint("DistanceX", 30, 3, -1, 1, 4.9),
    Sketcher.Constraint("DistanceX", 33, 3, -1, 1, 2.5),
    Sketcher.Constraint("DistanceX", 12, 3, 15, 3, 2.4),
    Sketcher.Constraint("DistanceX", 15, 3, 18, 3, 2.4),
    Sketcher.Constraint("DistanceX", 20, 3, 21, 3, 2.4),
    Sketcher.Constraint("DistanceX", 36, 3, 39, 3, 2.4),
    Sketcher.Constraint("DistanceX", 39, 3, 42, 3, 2.4),
    Sketcher.Constraint("DistanceX", 44, 3, 45, 3, 2.4),
    Sketcher.Constraint("DistanceX", -1, 1, 12, 3, 3.15),
    Sketcher.Constraint("DistanceX", 36, 3, -1, 1, 22.55),
    Sketcher.Constraint("Diameter", 1, 0.795468),
    Sketcher.Constraint("DistanceY", -1, 1, 0, 3, 25.678),
])
pocket6 = doc.addObject("PartDesign::Pocket", "Pocket005")
body.addObject(pocket6)
pocket6.Profile = sketch7
pocket6.Type = "ThroughAll"

doc.recompute()
